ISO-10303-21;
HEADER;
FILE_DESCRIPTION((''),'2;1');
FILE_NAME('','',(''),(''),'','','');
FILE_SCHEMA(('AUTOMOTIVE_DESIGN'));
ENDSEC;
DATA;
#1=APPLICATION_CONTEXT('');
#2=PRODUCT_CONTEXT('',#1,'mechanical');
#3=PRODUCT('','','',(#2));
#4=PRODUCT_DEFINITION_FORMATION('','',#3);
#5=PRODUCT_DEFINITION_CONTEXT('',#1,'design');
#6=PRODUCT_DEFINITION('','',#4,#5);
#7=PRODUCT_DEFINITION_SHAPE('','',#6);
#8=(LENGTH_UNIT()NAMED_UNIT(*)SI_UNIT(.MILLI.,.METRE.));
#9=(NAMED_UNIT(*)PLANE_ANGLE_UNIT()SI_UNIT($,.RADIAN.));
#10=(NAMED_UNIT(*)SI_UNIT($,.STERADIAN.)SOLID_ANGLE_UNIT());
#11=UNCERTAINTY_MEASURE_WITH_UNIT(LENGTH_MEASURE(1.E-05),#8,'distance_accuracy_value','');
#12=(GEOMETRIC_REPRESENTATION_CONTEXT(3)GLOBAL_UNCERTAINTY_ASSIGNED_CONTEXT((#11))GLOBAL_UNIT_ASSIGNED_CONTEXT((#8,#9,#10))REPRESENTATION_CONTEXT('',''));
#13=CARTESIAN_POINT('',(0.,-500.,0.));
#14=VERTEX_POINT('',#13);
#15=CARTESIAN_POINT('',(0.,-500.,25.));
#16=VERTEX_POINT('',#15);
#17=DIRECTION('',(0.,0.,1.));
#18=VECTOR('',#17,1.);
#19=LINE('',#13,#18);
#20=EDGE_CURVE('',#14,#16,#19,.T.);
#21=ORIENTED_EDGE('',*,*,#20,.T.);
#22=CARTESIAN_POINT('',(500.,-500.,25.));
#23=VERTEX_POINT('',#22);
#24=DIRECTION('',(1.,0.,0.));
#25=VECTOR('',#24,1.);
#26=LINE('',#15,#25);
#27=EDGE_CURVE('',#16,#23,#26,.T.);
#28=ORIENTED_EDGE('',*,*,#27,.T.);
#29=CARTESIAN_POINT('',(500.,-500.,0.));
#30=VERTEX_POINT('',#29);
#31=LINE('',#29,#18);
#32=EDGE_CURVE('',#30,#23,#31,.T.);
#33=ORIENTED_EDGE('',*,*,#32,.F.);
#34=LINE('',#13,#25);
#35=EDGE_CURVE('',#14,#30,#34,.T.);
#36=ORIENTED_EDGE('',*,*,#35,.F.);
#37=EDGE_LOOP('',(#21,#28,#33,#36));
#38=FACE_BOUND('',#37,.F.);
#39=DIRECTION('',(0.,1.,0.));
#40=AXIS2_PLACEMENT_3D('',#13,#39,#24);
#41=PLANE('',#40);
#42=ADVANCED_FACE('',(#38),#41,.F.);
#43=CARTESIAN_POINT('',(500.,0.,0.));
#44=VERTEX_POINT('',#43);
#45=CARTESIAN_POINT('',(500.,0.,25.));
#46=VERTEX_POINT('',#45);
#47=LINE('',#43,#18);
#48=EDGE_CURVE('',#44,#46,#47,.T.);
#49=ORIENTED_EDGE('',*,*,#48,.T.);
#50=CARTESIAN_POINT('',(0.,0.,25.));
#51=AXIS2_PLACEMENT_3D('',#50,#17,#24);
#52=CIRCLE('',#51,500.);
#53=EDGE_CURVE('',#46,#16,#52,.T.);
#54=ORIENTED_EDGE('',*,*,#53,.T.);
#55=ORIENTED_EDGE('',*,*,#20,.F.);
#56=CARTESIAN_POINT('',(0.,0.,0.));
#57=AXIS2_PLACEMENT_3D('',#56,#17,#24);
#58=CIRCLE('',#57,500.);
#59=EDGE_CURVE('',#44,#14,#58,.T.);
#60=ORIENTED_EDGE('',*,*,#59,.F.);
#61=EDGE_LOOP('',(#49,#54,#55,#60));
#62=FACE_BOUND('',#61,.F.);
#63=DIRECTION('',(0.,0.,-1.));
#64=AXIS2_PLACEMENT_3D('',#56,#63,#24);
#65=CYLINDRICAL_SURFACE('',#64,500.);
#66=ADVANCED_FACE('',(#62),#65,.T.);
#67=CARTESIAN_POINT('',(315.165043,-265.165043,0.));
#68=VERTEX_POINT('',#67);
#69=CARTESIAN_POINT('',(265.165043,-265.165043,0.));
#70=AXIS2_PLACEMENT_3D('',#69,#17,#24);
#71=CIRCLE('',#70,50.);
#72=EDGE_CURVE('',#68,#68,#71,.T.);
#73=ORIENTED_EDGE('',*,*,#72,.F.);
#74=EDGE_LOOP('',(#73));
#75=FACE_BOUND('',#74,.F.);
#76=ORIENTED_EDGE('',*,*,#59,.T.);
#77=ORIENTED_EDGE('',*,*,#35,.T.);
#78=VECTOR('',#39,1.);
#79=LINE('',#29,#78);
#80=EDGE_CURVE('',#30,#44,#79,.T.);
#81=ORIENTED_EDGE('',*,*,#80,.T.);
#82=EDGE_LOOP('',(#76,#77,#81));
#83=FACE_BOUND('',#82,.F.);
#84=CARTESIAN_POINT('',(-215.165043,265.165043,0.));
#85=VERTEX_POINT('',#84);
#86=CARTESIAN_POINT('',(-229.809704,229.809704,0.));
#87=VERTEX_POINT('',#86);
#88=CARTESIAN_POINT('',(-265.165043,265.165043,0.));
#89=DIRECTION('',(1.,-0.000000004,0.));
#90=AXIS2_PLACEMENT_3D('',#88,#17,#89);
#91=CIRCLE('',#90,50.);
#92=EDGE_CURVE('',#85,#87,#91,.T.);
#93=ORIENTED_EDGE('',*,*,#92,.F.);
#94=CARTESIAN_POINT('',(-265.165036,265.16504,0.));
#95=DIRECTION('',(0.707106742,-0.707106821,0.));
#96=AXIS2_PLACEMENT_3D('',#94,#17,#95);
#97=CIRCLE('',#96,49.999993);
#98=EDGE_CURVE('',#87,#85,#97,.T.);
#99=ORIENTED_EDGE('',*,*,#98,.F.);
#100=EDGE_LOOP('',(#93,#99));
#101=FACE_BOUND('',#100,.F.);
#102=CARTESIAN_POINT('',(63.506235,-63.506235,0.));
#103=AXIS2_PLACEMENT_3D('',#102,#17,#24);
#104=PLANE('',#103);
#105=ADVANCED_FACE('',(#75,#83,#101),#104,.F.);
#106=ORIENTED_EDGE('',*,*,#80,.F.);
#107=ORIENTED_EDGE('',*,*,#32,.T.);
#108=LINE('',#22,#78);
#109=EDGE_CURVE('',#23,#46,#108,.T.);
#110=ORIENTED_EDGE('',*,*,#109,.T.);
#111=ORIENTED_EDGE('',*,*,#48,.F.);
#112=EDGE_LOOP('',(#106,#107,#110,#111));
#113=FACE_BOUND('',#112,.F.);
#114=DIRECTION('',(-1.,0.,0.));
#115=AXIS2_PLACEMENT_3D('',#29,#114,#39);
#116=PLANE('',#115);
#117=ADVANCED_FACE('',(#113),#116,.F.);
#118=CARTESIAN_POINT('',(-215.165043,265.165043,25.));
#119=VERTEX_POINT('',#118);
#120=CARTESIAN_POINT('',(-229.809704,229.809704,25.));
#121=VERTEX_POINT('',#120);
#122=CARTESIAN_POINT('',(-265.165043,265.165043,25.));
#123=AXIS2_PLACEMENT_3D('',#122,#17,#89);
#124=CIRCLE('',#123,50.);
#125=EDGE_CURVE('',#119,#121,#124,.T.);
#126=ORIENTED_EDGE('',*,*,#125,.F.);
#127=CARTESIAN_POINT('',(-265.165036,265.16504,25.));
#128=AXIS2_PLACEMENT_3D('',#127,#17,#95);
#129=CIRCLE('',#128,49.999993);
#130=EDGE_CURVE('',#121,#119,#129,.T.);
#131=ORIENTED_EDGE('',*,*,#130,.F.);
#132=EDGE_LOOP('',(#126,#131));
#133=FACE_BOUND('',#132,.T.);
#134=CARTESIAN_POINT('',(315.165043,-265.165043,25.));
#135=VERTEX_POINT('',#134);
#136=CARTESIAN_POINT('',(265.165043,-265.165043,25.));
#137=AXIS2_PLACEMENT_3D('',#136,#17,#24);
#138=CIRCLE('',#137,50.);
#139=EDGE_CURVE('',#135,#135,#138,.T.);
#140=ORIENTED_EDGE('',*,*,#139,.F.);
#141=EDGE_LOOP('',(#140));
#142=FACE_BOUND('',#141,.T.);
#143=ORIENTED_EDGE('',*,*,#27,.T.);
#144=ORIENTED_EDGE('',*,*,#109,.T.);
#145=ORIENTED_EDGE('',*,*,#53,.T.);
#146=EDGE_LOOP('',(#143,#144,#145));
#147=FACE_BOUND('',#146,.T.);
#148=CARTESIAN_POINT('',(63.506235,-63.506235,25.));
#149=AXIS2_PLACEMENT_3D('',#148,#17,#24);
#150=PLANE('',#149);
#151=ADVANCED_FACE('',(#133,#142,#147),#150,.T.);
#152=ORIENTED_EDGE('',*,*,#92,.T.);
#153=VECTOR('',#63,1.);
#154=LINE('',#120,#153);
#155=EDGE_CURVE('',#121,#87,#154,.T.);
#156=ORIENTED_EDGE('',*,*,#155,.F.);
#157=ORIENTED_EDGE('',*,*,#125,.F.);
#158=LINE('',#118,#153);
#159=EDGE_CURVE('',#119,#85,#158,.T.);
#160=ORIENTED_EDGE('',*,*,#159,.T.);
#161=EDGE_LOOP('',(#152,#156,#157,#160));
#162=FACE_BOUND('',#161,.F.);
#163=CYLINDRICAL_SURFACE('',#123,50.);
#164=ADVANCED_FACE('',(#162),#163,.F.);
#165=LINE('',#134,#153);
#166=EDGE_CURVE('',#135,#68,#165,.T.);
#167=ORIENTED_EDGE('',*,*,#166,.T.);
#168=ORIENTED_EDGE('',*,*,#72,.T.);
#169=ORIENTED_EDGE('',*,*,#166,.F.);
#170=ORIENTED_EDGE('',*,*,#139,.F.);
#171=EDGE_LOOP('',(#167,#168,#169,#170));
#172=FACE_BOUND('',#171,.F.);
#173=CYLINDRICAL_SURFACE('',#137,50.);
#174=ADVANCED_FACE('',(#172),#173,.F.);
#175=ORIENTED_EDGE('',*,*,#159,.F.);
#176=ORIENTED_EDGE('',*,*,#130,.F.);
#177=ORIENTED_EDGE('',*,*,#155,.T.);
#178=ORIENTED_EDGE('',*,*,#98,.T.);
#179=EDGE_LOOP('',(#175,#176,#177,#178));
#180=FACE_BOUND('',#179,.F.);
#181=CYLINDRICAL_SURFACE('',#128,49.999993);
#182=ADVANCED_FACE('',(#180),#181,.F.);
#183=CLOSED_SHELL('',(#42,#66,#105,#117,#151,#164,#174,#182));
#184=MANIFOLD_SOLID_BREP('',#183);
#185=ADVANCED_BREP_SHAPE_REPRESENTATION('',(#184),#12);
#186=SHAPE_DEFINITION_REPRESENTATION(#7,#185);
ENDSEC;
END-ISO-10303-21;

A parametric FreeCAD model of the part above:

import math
import FreeCAD as App
import Part
import Sketcher
Q = App.Units.Quantity

doc = App.newDocument("Part")
body = doc.addObject("PartDesign::Body", "Body")

sketch1 = body.newObject("Sketcher::SketchObject", "Sketch")
sketch1.AttachmentSupport = (doc.getObject("XY_Plane"), [""])
sketch1.MapMode = "FlatFace"
sketch1.addGeometry(Part.LineSegment(App.Vector(500, -500, 0), App.Vector(500, 0, 0)), False)
sketch1.addGeometry(Part.ArcOfCircle(Part.Circle(App.Vector(0, 0, 0), App.Vector(0, 0, 1), 500), math.radians(0), math.radians(270)), False)
sketch1.addGeometry(Part.LineSegment(App.Vector(0, -500, 0), App.Vector(500, -500, 0)), False)
sketch1.addConstraint(Sketcher.Constraint("Tangent", 0, 2, 1, 1))
sketch1.addConstraint(Sketcher.Constraint("Tangent", 1, 2, 2, 1))
sketch1.addConstraint(Sketcher.Constraint("Coincident", 2, 2, 0, 1))
sketch1.addConstraint(Sketcher.Constraint("Vertical", 0))
sketch1.addConstraint(Sketcher.Constraint("Horizontal", 2))
sketch1.addConstraint(Sketcher.Constraint("Coincident", 1, 3, -1, 1))
sketch1.addConstraint(Sketcher.Constraint("Radius", 1, Q("500 mm")))
pad1 = body.newObject("PartDesign::Pad", "Pad")
pad1.Profile = sketch1
pad1.Length = 25

sketch2 = body.newObject("Sketcher::SketchObject", "Sketch001")
sketch2.AttachmentSupport = (doc.getObject("XY_Plane"), [""])
sketch2.MapMode = "FlatFace"
sketch2.AttachmentOffset = App.Placement(App.Vector(0, 0, 25), App.Rotation())
sketch2.addGeometry(Part.ArcOfCircle(Part.Circle(App.Vector(-265, 265, 0), App.Vector(0, 0, 1), 50), math.radians(-45), math.radians(0)), False)
sketch2.addGeometry(Part.ArcOfCircle(Part.Circle(App.Vector(-265, 265, 0), App.Vector(0, 0, 1), 50), math.radians(0), math.radians(315)), False)
sketch2.addGeometry(Part.Circle(App.Vector(265, -265, 0), App.Vector(0, 0, 1), 50), False)
sketch2.addConstraint(Sketcher.Constraint("Tangent", 0, 1, 1, 2))
sketch2.addConstraint(Sketcher.Constraint("Coincident", 1, 1, 0, 2))
sketch2.addConstraint(Sketcher.Constraint("Equal", 1, 2))
sketch2.addConstraint(Sketcher.Constraint("Symmetric", 0, 3, 2, 3, -1, 1))
sketch2.addConstraint(Sketcher.Constraint("Diameter", 2, Q("100 mm")))
sketch2.addConstraint(Sketcher.Constraint("DistanceY", -1, 1, 0, 3, Q("265.16504 mm")))
sketch2.addConstraint(Sketcher.Constraint("DistanceX", 0, 3, 2, 3, Q("530.330079 mm")))
sketch2.addConstraint(Sketcher.Constraint("DistanceX", 1, 3, 0, 1, Q("35.355339 mm")))
sketch2.addConstraint(Sketcher.Constraint("DistanceY", 0, 1, 1, 1, Q("35.355339 mm")))
pocket1 = body.newObject("PartDesign::Pocket", "Pocket")
pocket1.Profile = sketch2
pocket1.Type = "ThroughAll"

doc.recompute()
